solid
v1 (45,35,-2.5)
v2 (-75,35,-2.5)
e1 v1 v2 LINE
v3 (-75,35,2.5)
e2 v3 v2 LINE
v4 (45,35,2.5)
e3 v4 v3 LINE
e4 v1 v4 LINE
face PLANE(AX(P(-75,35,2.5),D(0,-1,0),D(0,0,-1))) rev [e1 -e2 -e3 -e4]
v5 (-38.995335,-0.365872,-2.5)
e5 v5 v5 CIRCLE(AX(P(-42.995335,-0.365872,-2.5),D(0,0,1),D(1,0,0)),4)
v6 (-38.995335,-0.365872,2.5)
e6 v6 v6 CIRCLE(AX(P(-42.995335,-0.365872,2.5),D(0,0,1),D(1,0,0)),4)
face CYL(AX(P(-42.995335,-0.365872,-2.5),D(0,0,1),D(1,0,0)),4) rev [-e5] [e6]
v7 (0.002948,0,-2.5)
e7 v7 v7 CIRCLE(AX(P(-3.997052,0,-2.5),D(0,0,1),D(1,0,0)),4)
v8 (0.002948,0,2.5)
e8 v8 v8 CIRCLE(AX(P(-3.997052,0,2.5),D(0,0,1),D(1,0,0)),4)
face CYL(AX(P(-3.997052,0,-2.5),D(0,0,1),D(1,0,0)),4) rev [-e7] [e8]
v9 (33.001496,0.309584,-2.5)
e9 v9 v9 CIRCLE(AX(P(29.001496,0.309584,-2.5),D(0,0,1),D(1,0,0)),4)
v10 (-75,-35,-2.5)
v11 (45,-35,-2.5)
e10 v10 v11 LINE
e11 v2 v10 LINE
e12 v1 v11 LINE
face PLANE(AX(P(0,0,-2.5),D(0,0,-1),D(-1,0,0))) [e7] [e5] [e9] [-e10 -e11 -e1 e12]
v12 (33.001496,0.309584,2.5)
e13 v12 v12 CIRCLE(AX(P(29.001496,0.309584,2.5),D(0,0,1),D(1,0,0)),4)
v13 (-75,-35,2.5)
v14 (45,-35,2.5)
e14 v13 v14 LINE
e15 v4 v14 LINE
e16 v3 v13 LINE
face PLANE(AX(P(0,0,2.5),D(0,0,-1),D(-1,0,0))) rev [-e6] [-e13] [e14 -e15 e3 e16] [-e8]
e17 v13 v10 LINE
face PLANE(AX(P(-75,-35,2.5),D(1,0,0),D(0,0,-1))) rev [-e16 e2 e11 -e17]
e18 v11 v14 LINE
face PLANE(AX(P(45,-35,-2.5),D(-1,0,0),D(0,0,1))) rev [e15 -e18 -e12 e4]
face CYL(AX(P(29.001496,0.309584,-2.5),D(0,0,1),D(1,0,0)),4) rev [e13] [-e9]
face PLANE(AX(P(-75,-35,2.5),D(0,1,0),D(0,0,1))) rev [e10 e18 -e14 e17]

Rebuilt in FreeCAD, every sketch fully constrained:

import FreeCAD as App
import Part
import Sketcher


def add_polygon(sketch, points):
    """Adds a closed chain of lines whose ends are joined by coincident constraints."""
    first, n = sketch.GeometryCount, len(points)
    for a, b in zip(points, points[1:] + points[:1]):
        sketch.addGeometry(Part.LineSegment(App.Vector(*a, 0), App.Vector(*b, 0)), False)
    for i in range(n):
        sketch.addConstraint(Sketcher.Constraint("Coincident", first + i, 2, first + (i + 1) % n, 1))

doc = App.newDocument("Part")
body = doc.addObject("PartDesign::Body", "Body")

# Sketch on XY plane
sketch1 = body.newObject("Sketcher::SketchObject", "Sketch")
sketch1.AttachmentSupport = (doc.getObject("XY_Plane"), [""])
sketch1.MapMode = "FlatFace"
add_polygon(sketch1, [(-75, 35), (-75, -35), (75, -35), (75, 35)])  # lines 0-3
sketch1.addConstraint(Sketcher.Constraint("Vertical", 0))
sketch1.addConstraint(Sketcher.Constraint("Horizontal", 1))
sketch1.addConstraint(Sketcher.Constraint("Vertical", 2))
sketch1.addConstraint(Sketcher.Constraint("Horizontal", 3))
sketch1.addConstraint(Sketcher.Constraint("Symmetric", 0, 2, 2, 2, -1, 1))
sketch1.addConstraint(Sketcher.Constraint("DistanceX", 1, 1, 1, 2, 150.0))
sketch1.addConstraint(Sketcher.Constraint("DistanceY", 0, 2, 0, 1, 70.0))
pad1 = body.newObject("PartDesign::Pad", "Pad")
pad1.Profile = sketch1
pad1.Length = 5
pad1.Midplane = True

# Sketch on XY plane
sketch2 = body.newObject("Sketcher::SketchObject", "Sketch001")
sketch2.AttachmentSupport = (doc.getObject("XY_Plane"), [""])
sketch2.MapMode = "FlatFace"
sketch2.AttachmentOffset = App.Placement(App.Vector(0, 0, 2.5), App.Rotation())
sketch2.addGeometry(Part.Circle(App.Vector(63, 0.6, 0), App.Vector(0, 0, 1), 4), False)
sketch2.addGeometry(Part.Circle(App.Vector(29, 0.3, 0), App.Vector(0, 0, 1), 4), False)
sketch2.addGeometry(Part.Circle(App.Vector(-43, -0.4, 0), App.Vector(0, 0, 1), 4), False)
sketch2.addGeometry(Part.Circle(App.Vector(-4, 0, 0), App.Vector(0, 0, 1), 4), False)
sketch2.addConstraint(Sketcher.Constraint("Equal", 0, 1))
sketch2.addConstraint(Sketcher.Constraint("Equal", 1, 2))
sketch2.addConstraint(Sketcher.Constraint("Equal", 2, 3))
sketch2.addConstraint(Sketcher.Constraint("PointOnObject", 3, 3, -1))
sketch2.addConstraint(Sketcher.Constraint("Diameter", 0, 8.0))
sketch2.addConstraint(Sketcher.Constraint("DistanceX", -1, 1, 0, 3, 63.0))
sketch2.addConstraint(Sketcher.Constraint("DistanceY", -1, 1, 0, 3, 0.628549))
sketch2.addConstraint(Sketcher.Constraint("DistanceY", 2, 3, -1, 1, 0.365872))
sketch2.addConstraint(Sketcher.Constraint("DistanceX", 3, 3, -1, 1, 3.997052))
sketch2.addConstraint(Sketcher.Constraint("DistanceX", 2, 3, 1, 3, 71.996832))
sketch2.addConstraint(Sketcher.Constraint("DistanceX", -1, 1, 1, 3, 29.001496))
sketch2.addConstraint(Sketcher.Constraint("DistanceY", -1, 1, 1, 3, 0.309584))
pocket1 = body.newObject("PartDesign::Pocket", "Pocket")
pocket1.Profile = sketch2
pocket1.Type = "ThroughAll"

# Sketch on XY plane
sketch3 = body.newObject("Sketcher::SketchObject", "Sketch002")
sketch3.AttachmentSupport = (doc.getObject("XY_Plane"), [""])
sketch3.MapMode = "FlatFace"
sketch3.AttachmentOffset = App.Placement(App.Vector(0, 0, 2.5), App.Rotation())
add_polygon(sketch3, [(45, 35), (45, -35), (75, -35), (75, 35)])  # lines 0-3
sketch3.addConstraint(Sketcher.Constraint("Vertical", 0))
sketch3.addConstraint(Sketcher.Constraint("Horizontal", 1))
sketch3.addConstraint(Sketcher.Constraint("Vertical", 2))
sketch3.addConstraint(Sketcher.Constraint("Horizontal", 3))
sketch3.addConstraint(Sketcher.Constraint("DistanceX", 1, 1, 1, 2, 30.0))
sketch3.addConstraint(Sketcher.Constraint("DistanceY", 0, 2, 0, 1, 70.0))
sketch3.addConstraint(Sketcher.Constraint("DistanceX", -1, 1, 0, 2, 45.0))
sketch3.addConstraint(Sketcher.Constraint("DistanceY", 0, 2, -1, 1, 35.0))
pocket2 = body.newObject("PartDesign::Pocket", "Pocket001")
pocket2.Profile = sketch3
pocket2.Type = "ThroughAll"

doc.recompute()
